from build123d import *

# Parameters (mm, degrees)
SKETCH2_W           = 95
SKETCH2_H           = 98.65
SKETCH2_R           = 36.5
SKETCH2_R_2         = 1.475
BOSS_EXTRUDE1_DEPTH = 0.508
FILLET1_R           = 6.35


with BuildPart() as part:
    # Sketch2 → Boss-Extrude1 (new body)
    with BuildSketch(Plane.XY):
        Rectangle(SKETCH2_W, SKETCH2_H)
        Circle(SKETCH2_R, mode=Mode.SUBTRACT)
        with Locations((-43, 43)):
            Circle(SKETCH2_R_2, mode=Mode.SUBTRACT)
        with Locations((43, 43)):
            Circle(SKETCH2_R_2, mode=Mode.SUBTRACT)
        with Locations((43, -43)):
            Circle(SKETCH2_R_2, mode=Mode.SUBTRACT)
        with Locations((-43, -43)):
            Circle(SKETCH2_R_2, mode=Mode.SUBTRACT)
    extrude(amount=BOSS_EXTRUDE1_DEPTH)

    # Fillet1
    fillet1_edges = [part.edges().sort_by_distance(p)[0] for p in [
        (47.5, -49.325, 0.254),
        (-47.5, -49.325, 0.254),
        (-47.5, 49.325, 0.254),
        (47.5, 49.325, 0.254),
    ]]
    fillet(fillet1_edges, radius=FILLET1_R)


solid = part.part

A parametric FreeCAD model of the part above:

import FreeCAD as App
import Part
import Sketcher

V = App.Vector
Q = App.Units.Quantity


def edges_at(feature, points):
    """Names of the edges that pass closest to the given points."""
    edges = feature.Shape.Edges
    near = lambda p: min(range(len(edges)), key=lambda i: edges[i].distToShape(Part.Vertex(*p))[0])
    return sorted({f"Edge{near(p) + 1}" for p in points})

doc = App.newDocument("Part")
body = doc.addObject("PartDesign::Body", "Body")

# Sketch on XY plane
sketch1 = body.newObject("Sketcher::SketchObject", "Sketch")
sketch1.AttachmentSupport = (doc.getObject("XY_Plane"), [""])
sketch1.MapMode = "FlatFace"
sketch1.addGeometry(Part.LineSegment(V(-47.5, 49.3, 0), V(-47.5, -49.3, 0)), False)
sketch1.addGeometry(Part.LineSegment(V(-47.5, -49.3, 0), V(47.5, -49.3, 0)), False)
sketch1.addGeometry(Part.LineSegment(V(47.5, -49.3, 0), V(47.5, 49.3, 0)), False)
sketch1.addGeometry(Part.LineSegment(V(47.5, 49.3, 0), V(-47.5, 49.3, 0)), False)
sketch1.addGeometry(Part.Circle(V(-43, -43, 0), V(0, 0, 1), 1.5), False)
sketch1.addGeometry(Part.Circle(V(0, 0, 0), V(0, 0, 1), 36.5), False)
sketch1.addGeometry(Part.Circle(V(43, -43, 0), V(0, 0, 1), 1.5), False)
sketch1.addGeometry(Part.Circle(V(-43, 43, 0), V(0, 0, 1), 1.5), False)
sketch1.addGeometry(Part.Circle(V(43, 43, 0), V(0, 0, 1), 1.5), False)
sketch1.addConstraint(Sketcher.Constraint("Coincident", 0, 2, 1, 1))
sketch1.addConstraint(Sketcher.Constraint("Coincident", 1, 2, 2, 1))
sketch1.addConstraint(Sketcher.Constraint("Coincident", 2, 2, 3, 1))
sketch1.addConstraint(Sketcher.Constraint("Coincident", 3, 2, 0, 1))
sketch1.addConstraint(Sketcher.Constraint("Vertical", 0))
sketch1.addConstraint(Sketcher.Constraint("Horizontal", 1))
sketch1.addConstraint(Sketcher.Constraint("Vertical", 2))
sketch1.addConstraint(Sketcher.Constraint("Horizontal", 3))
sketch1.addConstraint(Sketcher.Constraint("Coincident", 5, 3, -1, 1))
sketch1.addConstraint(Sketcher.Constraint("Equal", 4, 6))
sketch1.addConstraint(Sketcher.Constraint("Equal", 6, 7))
sketch1.addConstraint(Sketcher.Constraint("Equal", 7, 8))
sketch1.addConstraint(Sketcher.Constraint("Symmetric", 6, 3, 7, 3, -1, 1))
sketch1.addConstraint(Sketcher.Constraint("Symmetric", 4, 3, 8, 3, -1, 1))
sketch1.addConstraint(Sketcher.Constraint("Symmetric", 0, 2, 2, 2, -1, 1))
sketch1.addConstraint(Sketcher.Constraint("Symmetric", 4, 3, 6, 3, -2))
sketch1.addConstraint(Sketcher.Constraint("Diameter", 5, Q("73 mm")))
sketch1.addConstraint(Sketcher.Constraint("Diameter", 4, Q("2.95 mm")))
sketch1.addConstraint(Sketcher.Constraint("DistanceX", 1, 1, 1, 2, Q("95 mm")))
sketch1.addConstraint(Sketcher.Constraint("DistanceX", 4, 3, -1, 1, Q("43 mm")))
sketch1.addConstraint(Sketcher.Constraint("DistanceY", 4, 3, -1, 1, Q("43 mm")))
sketch1.addConstraint(Sketcher.Constraint("DistanceY", 0, 2, 0, 1, Q("98.65 mm")))
pad1 = body.newObject("PartDesign::Pad", "Pad")
pad1.Profile = sketch1
pad1.Length = 0.508
doc.recompute()

fillet = body.newObject("PartDesign::Fillet", "Fillet")
fillet.Base = (pad1, edges_at(pad1, [
    (47.5, -49.325, 0.254),
    (-47.5, -49.325, 0.254),
    (-47.5, 49.325, 0.254),
    (47.5, 49.325, 0.254),
]))
fillet.Radius = 6.35

doc.recompute()
